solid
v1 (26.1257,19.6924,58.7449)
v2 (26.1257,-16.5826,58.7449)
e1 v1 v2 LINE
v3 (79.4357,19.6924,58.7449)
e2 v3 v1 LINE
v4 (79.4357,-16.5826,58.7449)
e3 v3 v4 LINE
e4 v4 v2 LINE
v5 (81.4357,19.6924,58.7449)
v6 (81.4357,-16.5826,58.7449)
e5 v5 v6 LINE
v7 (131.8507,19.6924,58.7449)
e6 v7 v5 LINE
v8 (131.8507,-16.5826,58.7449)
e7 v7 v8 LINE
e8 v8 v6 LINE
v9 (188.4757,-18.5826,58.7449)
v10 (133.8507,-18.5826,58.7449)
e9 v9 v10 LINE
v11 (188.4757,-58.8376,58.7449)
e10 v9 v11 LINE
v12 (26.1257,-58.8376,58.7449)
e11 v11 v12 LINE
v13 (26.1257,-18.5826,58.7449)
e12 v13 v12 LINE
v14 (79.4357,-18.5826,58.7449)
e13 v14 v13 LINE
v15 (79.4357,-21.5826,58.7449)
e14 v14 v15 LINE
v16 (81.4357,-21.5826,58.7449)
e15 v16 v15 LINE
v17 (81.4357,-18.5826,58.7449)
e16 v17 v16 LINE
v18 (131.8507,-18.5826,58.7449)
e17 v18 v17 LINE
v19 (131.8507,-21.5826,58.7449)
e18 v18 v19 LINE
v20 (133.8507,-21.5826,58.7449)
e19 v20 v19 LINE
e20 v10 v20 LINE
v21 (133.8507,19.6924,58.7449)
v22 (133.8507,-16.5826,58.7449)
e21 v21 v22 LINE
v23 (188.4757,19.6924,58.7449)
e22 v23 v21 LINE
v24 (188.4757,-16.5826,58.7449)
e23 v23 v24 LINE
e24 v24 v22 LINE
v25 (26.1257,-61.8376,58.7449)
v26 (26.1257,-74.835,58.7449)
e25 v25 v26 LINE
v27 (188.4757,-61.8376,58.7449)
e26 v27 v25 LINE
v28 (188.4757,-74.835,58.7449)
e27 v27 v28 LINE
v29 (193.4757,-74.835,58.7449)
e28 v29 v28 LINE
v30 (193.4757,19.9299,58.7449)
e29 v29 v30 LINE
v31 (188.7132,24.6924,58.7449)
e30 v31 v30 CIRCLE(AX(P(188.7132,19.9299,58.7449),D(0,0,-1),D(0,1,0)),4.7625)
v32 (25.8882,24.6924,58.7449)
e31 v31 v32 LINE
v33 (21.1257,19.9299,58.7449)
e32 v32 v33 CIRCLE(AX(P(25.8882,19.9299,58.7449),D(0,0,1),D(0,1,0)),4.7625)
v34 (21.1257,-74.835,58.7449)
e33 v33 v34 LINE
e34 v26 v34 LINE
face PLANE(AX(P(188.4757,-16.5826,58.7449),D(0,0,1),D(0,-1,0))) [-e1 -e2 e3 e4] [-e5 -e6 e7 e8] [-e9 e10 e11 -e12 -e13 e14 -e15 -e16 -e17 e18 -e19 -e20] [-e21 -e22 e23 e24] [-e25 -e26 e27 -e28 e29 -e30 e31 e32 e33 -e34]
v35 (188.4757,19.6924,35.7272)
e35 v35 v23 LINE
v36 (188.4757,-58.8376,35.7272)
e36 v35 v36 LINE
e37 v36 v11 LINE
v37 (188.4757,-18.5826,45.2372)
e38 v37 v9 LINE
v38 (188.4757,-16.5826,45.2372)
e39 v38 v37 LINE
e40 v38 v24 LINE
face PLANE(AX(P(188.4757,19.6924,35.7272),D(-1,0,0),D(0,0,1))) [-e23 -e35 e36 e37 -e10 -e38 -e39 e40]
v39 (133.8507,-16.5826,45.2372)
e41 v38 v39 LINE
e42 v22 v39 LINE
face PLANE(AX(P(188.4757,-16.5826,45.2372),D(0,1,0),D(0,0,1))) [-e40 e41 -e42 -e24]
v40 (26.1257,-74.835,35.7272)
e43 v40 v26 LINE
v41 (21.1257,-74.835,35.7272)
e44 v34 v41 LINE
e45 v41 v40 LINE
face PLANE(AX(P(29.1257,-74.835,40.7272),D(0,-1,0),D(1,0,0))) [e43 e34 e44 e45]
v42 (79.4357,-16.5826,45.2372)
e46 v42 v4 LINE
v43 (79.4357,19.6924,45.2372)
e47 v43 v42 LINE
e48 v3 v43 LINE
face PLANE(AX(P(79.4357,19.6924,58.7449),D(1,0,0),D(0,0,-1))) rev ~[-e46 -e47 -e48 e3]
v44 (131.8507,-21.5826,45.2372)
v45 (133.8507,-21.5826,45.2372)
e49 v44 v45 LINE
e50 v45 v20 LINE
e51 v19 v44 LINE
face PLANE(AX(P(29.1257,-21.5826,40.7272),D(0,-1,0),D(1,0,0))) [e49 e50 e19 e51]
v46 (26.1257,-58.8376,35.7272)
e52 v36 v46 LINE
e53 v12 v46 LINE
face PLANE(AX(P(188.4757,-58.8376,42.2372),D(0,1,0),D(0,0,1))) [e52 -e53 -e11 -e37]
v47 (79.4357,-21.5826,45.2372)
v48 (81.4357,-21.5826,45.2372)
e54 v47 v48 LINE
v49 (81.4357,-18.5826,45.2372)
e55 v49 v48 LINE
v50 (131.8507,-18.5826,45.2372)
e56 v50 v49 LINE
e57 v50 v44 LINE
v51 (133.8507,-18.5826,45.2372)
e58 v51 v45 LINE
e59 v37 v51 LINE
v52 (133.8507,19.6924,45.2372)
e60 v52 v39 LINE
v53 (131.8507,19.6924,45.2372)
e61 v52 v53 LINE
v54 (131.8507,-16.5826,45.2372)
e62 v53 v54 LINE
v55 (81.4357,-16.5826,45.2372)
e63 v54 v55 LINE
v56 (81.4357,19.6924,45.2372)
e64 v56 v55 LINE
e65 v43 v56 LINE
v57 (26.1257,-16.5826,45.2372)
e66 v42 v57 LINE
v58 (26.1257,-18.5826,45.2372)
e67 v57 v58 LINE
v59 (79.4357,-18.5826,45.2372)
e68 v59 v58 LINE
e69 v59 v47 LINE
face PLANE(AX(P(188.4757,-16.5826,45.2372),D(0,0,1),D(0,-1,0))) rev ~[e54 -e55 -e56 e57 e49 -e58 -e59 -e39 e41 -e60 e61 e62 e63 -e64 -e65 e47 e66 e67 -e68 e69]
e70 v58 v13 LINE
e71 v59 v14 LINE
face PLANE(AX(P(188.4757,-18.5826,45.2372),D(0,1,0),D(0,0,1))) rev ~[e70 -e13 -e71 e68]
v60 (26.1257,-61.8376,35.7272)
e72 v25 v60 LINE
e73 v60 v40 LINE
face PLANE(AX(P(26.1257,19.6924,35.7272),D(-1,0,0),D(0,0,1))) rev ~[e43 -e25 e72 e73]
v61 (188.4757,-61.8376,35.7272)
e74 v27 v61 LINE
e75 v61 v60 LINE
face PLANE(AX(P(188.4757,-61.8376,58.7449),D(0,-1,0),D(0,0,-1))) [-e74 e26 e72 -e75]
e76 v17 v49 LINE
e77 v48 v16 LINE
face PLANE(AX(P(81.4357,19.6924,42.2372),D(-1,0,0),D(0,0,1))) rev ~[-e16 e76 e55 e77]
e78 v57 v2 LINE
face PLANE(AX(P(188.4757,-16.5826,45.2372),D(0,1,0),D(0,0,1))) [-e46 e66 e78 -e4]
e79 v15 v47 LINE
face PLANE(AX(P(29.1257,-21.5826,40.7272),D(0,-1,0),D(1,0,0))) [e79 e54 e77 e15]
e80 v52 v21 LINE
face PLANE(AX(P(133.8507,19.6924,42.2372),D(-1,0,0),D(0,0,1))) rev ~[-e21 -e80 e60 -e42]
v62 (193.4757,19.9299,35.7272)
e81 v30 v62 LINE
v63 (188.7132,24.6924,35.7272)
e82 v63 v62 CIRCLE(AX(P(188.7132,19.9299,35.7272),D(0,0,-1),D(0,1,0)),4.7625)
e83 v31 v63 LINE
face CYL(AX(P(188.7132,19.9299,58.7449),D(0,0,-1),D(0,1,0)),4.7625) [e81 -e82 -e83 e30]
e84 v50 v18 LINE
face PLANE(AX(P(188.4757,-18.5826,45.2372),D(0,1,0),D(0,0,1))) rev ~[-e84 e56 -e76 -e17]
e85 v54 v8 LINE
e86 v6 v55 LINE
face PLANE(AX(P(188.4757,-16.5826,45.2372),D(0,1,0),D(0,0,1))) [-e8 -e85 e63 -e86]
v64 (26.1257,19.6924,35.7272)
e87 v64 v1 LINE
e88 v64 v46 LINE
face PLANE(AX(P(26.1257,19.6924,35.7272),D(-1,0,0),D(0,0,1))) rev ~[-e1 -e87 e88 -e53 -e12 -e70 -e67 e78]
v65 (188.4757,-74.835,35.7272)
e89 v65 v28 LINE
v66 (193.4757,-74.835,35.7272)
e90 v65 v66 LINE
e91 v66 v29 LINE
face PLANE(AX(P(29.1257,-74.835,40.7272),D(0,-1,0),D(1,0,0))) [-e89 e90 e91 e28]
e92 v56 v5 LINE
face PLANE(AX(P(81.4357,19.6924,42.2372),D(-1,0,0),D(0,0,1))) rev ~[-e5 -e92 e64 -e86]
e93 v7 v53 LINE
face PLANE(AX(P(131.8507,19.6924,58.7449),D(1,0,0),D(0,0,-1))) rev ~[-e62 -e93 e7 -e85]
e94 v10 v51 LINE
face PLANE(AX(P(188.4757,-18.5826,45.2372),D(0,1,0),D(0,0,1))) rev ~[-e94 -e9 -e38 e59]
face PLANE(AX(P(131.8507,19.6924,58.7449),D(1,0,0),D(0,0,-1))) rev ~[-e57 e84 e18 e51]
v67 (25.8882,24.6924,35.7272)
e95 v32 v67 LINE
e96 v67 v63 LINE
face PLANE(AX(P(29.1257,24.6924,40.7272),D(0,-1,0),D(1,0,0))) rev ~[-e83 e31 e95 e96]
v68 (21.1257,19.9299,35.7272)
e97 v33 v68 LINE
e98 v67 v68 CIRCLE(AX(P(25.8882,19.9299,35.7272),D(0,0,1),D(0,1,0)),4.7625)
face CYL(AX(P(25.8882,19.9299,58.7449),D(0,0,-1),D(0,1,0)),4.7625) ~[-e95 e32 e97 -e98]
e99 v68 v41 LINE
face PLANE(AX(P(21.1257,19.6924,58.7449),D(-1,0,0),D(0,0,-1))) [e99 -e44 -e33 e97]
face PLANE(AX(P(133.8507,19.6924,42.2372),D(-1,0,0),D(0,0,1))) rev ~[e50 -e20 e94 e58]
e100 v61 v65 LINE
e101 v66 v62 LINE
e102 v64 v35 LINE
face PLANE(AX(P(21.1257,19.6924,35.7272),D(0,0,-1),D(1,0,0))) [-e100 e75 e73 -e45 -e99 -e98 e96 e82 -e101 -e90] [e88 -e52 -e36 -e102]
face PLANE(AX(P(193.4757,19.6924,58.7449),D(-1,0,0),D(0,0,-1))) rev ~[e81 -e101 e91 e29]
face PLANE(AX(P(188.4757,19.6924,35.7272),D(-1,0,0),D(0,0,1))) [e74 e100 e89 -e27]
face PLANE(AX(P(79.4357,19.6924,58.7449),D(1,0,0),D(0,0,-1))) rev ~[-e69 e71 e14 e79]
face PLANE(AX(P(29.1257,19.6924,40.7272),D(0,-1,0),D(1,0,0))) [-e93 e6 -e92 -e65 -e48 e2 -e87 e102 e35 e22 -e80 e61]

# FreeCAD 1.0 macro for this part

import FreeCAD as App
import Part
import Sketcher

V = App.Vector
Q = App.Units.Quantity


def edges_at(feature, points):
    """Names of the edges that pass closest to the given points."""
    edges = feature.Shape.Edges
    near = lambda p: min(range(len(edges)), key=lambda i: edges[i].distToShape(Part.Vertex(*p))[0])
    return sorted({f"Edge{near(p) + 1}" for p in points})


def add_polygon(sketch, points):
    """Adds a closed chain of lines whose ends are joined by coincident constraints."""
    first, n = sketch.GeometryCount, len(points)
    for a, b in zip(points, points[1:] + points[:1]):
        sketch.addGeometry(Part.LineSegment(App.Vector(*a, 0), App.Vector(*b, 0)), False)
    for i in range(n):
        sketch.addConstraint(Sketcher.Constraint("Coincident", first + i, 2, first + (i + 1) % n, 1))

doc = App.newDocument("Part")
params = doc.addObject("Spreadsheet::Sheet", "Params")
for row, (alias, value) in enumerate([
    ("sketch1_width", "172.35 mm"),
    ("pad1_length", "5 mm"),
    ("sketch2_width", "5 mm"),
    ("pad2_length", "94.5274 mm"),
    ("sketch3_width", "3 mm"),
    ("pad3_length", "162.35 mm"),
    ("sketch4_width", "2 mm"),
    ("pad4_length", "41.275 mm"),
    ("sketch5_width", "2 mm"),
    ("pocket1_length", "3 mm"),
    ("sketch6_width", "2 mm"),
    ("pad5_length", "162.35 mm"),
    ("fillet_radius", "4.7625 mm"),
], start=1):
    params.set(f"A{row}", alias)
    params.set(f"B{row}", "=" + value)
    params.setAlias(f"B{row}", alias)

body = doc.addObject("PartDesign::Body", "Body")

sketch1 = body.newObject("Sketcher::SketchObject", "Sketch")
sketch1.AttachmentSupport = (doc.getObject("XZ_Plane"), [""])
sketch1.MapMode = "FlatFace"
sketch1.AttachmentOffset = App.Placement(V(0, 0, -19.6924), App.Rotation())
add_polygon(sketch1, [(193, 59), (21, 59), (21, 36), (193, 36)])
sketch1.addConstraint(Sketcher.Constraint("Horizontal", 0))
sketch1.addConstraint(Sketcher.Constraint("Vertical", 1))
sketch1.addConstraint(Sketcher.Constraint("Horizontal", 2))
sketch1.addConstraint(Sketcher.Constraint("Vertical", 3))
sketch1.addConstraint(Sketcher.Constraint("DistanceX", 0, 2, 0, 1, Q("172.35 mm")))
sketch1.addConstraint(Sketcher.Constraint("DistanceY", 1, 2, 1, 1, Q("23.0177 mm")))
sketch1.addConstraint(Sketcher.Constraint("DistanceY", -1, 1, 0, 2, Q("58.745 mm")))
sketch1.addConstraint(Sketcher.Constraint("DistanceX", -1, 1, 0, 2, Q("21.1257 mm")))
sketch1.setExpression("Constraints[8]", "Params.sketch1_width")
pad1 = body.newObject("PartDesign::Pad", "Pad")
pad1.Profile = sketch1
pad1.setExpression("Length", "Params.pad1_length")
pad1.Reversed = True

sketch2 = body.newObject("Sketcher::SketchObject", "Sketch001")
sketch2.AttachmentSupport = (doc.getObject("XZ_Plane"), [""])
sketch2.MapMode = "FlatFace"
sketch2.AttachmentOffset = App.Placement(V(0, 0, -19.6924), App.Rotation())
add_polygon(sketch2, [(26, 59), (21, 59), (21, 36), (26, 36)])
add_polygon(sketch2, [(193, 59), (188, 59), (188, 36), (193, 36)])
sketch2.addConstraint(Sketcher.Constraint("Horizontal", 0))
sketch2.addConstraint(Sketcher.Constraint("Vertical", 1))
sketch2.addConstraint(Sketcher.Constraint("Horizontal", 2))
sketch2.addConstraint(Sketcher.Constraint("Vertical", 3))
sketch2.addConstraint(Sketcher.Constraint("Horizontal", 4))
sketch2.addConstraint(Sketcher.Constraint("Vertical", 5))
sketch2.addConstraint(Sketcher.Constraint("Horizontal", 6))
sketch2.addConstraint(Sketcher.Constraint("Vertical", 7))
sketch2.addConstraint(Sketcher.Constraint("Horizontal", 3, 2, 4, 2))
sketch2.addConstraint(Sketcher.Constraint("Horizontal", 2, 2, 5, 2))
sketch2.addConstraint(Sketcher.Constraint("Equal", 2, 4))
sketch2.addConstraint(Sketcher.Constraint("DistanceX", 0, 2, 0, 1, Q("5 mm")))
sketch2.addConstraint(Sketcher.Constraint("DistanceX", 3, 2, 4, 2, Q("162.35 mm")))
sketch2.addConstraint(Sketcher.Constraint("DistanceY", 1, 2, 1, 1, Q("23.0177 mm")))
sketch2.addConstraint(Sketcher.Constraint("DistanceY", -1, 1, 0, 2, Q("58.745 mm")))
sketch2.addConstraint(Sketcher.Constraint("DistanceX", -1, 1, 0, 2, Q("21.1257 mm")))
sketch2.setExpression("Constraints[19]", "Params.sketch2_width")
pad2 = body.newObject("PartDesign::Pad", "Pad001")
pad2.Profile = sketch2
pad2.setExpression("Length", "Params.pad2_length")

sketch3 = body.newObject("Sketcher::SketchObject", "Sketch002")
sketch3.AttachmentSupport = (doc.getObject("YZ_Plane"), [""])
sketch3.MapMode = "FlatFace"
sketch3.AttachmentOffset = App.Placement(V(0, 0, 188.4757), App.Rotation())
add_polygon(sketch3, [(-58.8, 58.7), (-58.8, 35.7), (-61.8, 35.7), (-61.8, 58.7)])
sketch3.addConstraint(Sketcher.Constraint("Vertical", 0))
sketch3.addConstraint(Sketcher.Constraint("Horizontal", 1))
sketch3.addConstraint(Sketcher.Constraint("Vertical", 2))
sketch3.addConstraint(Sketcher.Constraint("Horizontal", 3))
sketch3.addConstraint(Sketcher.Constraint("DistanceX", 1, 2, 1, 1, Q("3 mm")))
sketch3.addConstraint(Sketcher.Constraint("DistanceY", 0, 2, 0, 1, Q("23.0177 mm")))
sketch3.addConstraint(Sketcher.Constraint("DistanceY", -1, 1, 2, 2, Q("58.745 mm")))
sketch3.addConstraint(Sketcher.Constraint("DistanceX", 0, 2, -1, 1, Q("58.8376 mm")))
sketch3.setExpression("Constraints[8]", "Params.sketch3_width")
pad3 = body.newObject("PartDesign::Pad", "Pad002")
pad3.Profile = sketch3
pad3.setExpression("Length", "Params.pad3_length")
pad3.Reversed = True

sketch4 = body.newObject("Sketcher::SketchObject", "Sketch003")
sketch4.AttachmentSupport = (doc.getObject("XZ_Plane"), [""])
sketch4.MapMode = "FlatFace"
sketch4.AttachmentOffset = App.Placement(V(0, 0, -19.6924), App.Rotation())
add_polygon(sketch4, [(81.4, 58.7), (79.4, 58.7), (79.4, 42.2), (81.4, 42.2)])
add_polygon(sketch4, [(133.9, 58.7), (131.9, 58.7), (131.9, 42.2), (133.9, 42.2)])
sketch4.addConstraint(Sketcher.Constraint("Horizontal", 0))
sketch4.addConstraint(Sketcher.Constraint("Vertical", 1))
sketch4.addConstraint(Sketcher.Constraint("Horizontal", 2))
sketch4.addConstraint(Sketcher.Constraint("Vertical", 3))
sketch4.addConstraint(Sketcher.Constraint("Horizontal", 4))
sketch4.addConstraint(Sketcher.Constraint("Vertical", 5))
sketch4.addConstraint(Sketcher.Constraint("Horizontal", 6))
sketch4.addConstraint(Sketcher.Constraint("Vertical", 7))
sketch4.addConstraint(Sketcher.Constraint("Horizontal", 3, 2, 4, 2))
sketch4.addConstraint(Sketcher.Constraint("Horizontal", 2, 2, 5, 2))
sketch4.addConstraint(Sketcher.Constraint("Equal", 2, 4))
sketch4.addConstraint(Sketcher.Constraint("DistanceX", 0, 2, 0, 1, Q("2 mm")))
sketch4.addConstraint(Sketcher.Constraint("DistanceY", 1, 2, 1, 1, Q("16.5077 mm")))
sketch4.addConstraint(Sketcher.Constraint("DistanceY", -1, 1, 0, 2, Q("58.745 mm")))
sketch4.addConstraint(Sketcher.Constraint("DistanceX", 3, 2, 4, 2, Q("50.415 mm")))
sketch4.addConstraint(Sketcher.Constraint("DistanceX", -1, 1, 0, 2, Q("79.4357 mm")))
sketch4.setExpression("Constraints[19]", "Params.sketch4_width")
pad4 = body.newObject("PartDesign::Pad", "Pad003")
pad4.Profile = sketch4
pad4.setExpression("Length", "Params.pad4_length")

sketch5 = body.newObject("Sketcher::SketchObject", "Sketch004")
sketch5.AttachmentSupport = (doc.getObject("XY_Plane"), [""])
sketch5.MapMode = "FlatFace"
sketch5.AttachmentOffset = App.Placement(V(0, 0, 42.2372), App.Rotation())
add_polygon(sketch5, [(131.9, -21.6), (131.9, 19.7), (133.9, 19.7), (133.9, -21.6)])
add_polygon(sketch5, [(79.4, -21.6), (79.4, 19.7), (81.4, 19.7), (81.4, -21.6)])
sketch5.addConstraint(Sketcher.Constraint("Vertical", 0))
sketch5.addConstraint(Sketcher.Constraint("Horizontal", 1))
sketch5.addConstraint(Sketcher.Constraint("Vertical", 2))
sketch5.addConstraint(Sketcher.Constraint("Horizontal", 3))
sketch5.addConstraint(Sketcher.Constraint("Vertical", 4))
sketch5.addConstraint(Sketcher.Constraint("Horizontal", 5))
sketch5.addConstraint(Sketcher.Constraint("Vertical", 6))
sketch5.addConstraint(Sketcher.Constraint("Horizontal", 7))
sketch5.addConstraint(Sketcher.Constraint("Horizontal", 1, 2, 4, 2))
sketch5.addConstraint(Sketcher.Constraint("Horizontal", 3, 2, 6, 2))
sketch5.addConstraint(Sketcher.Constraint("Equal", 3, 5))
sketch5.addConstraint(Sketcher.Constraint("DistanceX", 1, 1, 1, 2, Q("2 mm")))
sketch5.addConstraint(Sketcher.Constraint("DistanceY", 0, 1, 0, 2, Q("41.275 mm")))
sketch5.addConstraint(Sketcher.Constraint("DistanceX", 4, 2, 0, 2, Q("52.415 mm")))
sketch5.addConstraint(Sketcher.Constraint("DistanceX", -1, 1, 0, 2, Q("131.8507 mm")))
sketch5.addConstraint(Sketcher.Constraint("DistanceY", -1, 1, 0, 2, Q("19.6924 mm")))
sketch5.setExpression("Constraints[19]", "Params.sketch5_width")
pocket1 = body.newObject("PartDesign::Pocket", "Pocket")
pocket1.Profile = sketch5
pocket1.setExpression("Length", "Params.pocket1_length")
pocket1.Reversed = True

sketch6 = body.newObject("Sketcher::SketchObject", "Sketch005")
sketch6.AttachmentSupport = (doc.getObject("YZ_Plane"), [""])
sketch6.MapMode = "FlatFace"
sketch6.AttachmentOffset = App.Placement(V(0, 0, 188.4757), App.Rotation())
add_polygon(sketch6, [(-18.6, 58.7), (-16.6, 58.7), (-16.6, 45.2), (-18.6, 45.2)])
sketch6.addConstraint(Sketcher.Constraint("Horizontal", 0))
sketch6.addConstraint(Sketcher.Constraint("Vertical", 1))
sketch6.addConstraint(Sketcher.Constraint("Horizontal", 2))
sketch6.addConstraint(Sketcher.Constraint("Vertical", 3))
sketch6.addConstraint(Sketcher.Constraint("DistanceX", 0, 1, 0, 2, Q("2 mm")))
sketch6.addConstraint(Sketcher.Constraint("DistanceY", 1, 2, 1, 1, Q("13.5077 mm")))
sketch6.addConstraint(Sketcher.Constraint("DistanceY", -1, 1, 0, 2, Q("58.745 mm")))
sketch6.addConstraint(Sketcher.Constraint("DistanceX", 0, 2, -1, 1, Q("16.5826 mm")))
sketch6.setExpression("Constraints[8]", "Params.sketch6_width")
pad5 = body.newObject("PartDesign::Pad", "Pad004")
pad5.Profile = sketch6
pad5.setExpression("Length", "Params.pad5_length")
pad5.Reversed = True
doc.recompute()

fillet = body.newObject("PartDesign::Fillet", "Fillet")
fillet.Base = (pad5, edges_at(pad5, [(21.126, 24.692, 47.236), (193.476, 24.692, 47.236)]))
fillet.setExpression("Radius", "Params.fillet_radius")

doc.recompute()
